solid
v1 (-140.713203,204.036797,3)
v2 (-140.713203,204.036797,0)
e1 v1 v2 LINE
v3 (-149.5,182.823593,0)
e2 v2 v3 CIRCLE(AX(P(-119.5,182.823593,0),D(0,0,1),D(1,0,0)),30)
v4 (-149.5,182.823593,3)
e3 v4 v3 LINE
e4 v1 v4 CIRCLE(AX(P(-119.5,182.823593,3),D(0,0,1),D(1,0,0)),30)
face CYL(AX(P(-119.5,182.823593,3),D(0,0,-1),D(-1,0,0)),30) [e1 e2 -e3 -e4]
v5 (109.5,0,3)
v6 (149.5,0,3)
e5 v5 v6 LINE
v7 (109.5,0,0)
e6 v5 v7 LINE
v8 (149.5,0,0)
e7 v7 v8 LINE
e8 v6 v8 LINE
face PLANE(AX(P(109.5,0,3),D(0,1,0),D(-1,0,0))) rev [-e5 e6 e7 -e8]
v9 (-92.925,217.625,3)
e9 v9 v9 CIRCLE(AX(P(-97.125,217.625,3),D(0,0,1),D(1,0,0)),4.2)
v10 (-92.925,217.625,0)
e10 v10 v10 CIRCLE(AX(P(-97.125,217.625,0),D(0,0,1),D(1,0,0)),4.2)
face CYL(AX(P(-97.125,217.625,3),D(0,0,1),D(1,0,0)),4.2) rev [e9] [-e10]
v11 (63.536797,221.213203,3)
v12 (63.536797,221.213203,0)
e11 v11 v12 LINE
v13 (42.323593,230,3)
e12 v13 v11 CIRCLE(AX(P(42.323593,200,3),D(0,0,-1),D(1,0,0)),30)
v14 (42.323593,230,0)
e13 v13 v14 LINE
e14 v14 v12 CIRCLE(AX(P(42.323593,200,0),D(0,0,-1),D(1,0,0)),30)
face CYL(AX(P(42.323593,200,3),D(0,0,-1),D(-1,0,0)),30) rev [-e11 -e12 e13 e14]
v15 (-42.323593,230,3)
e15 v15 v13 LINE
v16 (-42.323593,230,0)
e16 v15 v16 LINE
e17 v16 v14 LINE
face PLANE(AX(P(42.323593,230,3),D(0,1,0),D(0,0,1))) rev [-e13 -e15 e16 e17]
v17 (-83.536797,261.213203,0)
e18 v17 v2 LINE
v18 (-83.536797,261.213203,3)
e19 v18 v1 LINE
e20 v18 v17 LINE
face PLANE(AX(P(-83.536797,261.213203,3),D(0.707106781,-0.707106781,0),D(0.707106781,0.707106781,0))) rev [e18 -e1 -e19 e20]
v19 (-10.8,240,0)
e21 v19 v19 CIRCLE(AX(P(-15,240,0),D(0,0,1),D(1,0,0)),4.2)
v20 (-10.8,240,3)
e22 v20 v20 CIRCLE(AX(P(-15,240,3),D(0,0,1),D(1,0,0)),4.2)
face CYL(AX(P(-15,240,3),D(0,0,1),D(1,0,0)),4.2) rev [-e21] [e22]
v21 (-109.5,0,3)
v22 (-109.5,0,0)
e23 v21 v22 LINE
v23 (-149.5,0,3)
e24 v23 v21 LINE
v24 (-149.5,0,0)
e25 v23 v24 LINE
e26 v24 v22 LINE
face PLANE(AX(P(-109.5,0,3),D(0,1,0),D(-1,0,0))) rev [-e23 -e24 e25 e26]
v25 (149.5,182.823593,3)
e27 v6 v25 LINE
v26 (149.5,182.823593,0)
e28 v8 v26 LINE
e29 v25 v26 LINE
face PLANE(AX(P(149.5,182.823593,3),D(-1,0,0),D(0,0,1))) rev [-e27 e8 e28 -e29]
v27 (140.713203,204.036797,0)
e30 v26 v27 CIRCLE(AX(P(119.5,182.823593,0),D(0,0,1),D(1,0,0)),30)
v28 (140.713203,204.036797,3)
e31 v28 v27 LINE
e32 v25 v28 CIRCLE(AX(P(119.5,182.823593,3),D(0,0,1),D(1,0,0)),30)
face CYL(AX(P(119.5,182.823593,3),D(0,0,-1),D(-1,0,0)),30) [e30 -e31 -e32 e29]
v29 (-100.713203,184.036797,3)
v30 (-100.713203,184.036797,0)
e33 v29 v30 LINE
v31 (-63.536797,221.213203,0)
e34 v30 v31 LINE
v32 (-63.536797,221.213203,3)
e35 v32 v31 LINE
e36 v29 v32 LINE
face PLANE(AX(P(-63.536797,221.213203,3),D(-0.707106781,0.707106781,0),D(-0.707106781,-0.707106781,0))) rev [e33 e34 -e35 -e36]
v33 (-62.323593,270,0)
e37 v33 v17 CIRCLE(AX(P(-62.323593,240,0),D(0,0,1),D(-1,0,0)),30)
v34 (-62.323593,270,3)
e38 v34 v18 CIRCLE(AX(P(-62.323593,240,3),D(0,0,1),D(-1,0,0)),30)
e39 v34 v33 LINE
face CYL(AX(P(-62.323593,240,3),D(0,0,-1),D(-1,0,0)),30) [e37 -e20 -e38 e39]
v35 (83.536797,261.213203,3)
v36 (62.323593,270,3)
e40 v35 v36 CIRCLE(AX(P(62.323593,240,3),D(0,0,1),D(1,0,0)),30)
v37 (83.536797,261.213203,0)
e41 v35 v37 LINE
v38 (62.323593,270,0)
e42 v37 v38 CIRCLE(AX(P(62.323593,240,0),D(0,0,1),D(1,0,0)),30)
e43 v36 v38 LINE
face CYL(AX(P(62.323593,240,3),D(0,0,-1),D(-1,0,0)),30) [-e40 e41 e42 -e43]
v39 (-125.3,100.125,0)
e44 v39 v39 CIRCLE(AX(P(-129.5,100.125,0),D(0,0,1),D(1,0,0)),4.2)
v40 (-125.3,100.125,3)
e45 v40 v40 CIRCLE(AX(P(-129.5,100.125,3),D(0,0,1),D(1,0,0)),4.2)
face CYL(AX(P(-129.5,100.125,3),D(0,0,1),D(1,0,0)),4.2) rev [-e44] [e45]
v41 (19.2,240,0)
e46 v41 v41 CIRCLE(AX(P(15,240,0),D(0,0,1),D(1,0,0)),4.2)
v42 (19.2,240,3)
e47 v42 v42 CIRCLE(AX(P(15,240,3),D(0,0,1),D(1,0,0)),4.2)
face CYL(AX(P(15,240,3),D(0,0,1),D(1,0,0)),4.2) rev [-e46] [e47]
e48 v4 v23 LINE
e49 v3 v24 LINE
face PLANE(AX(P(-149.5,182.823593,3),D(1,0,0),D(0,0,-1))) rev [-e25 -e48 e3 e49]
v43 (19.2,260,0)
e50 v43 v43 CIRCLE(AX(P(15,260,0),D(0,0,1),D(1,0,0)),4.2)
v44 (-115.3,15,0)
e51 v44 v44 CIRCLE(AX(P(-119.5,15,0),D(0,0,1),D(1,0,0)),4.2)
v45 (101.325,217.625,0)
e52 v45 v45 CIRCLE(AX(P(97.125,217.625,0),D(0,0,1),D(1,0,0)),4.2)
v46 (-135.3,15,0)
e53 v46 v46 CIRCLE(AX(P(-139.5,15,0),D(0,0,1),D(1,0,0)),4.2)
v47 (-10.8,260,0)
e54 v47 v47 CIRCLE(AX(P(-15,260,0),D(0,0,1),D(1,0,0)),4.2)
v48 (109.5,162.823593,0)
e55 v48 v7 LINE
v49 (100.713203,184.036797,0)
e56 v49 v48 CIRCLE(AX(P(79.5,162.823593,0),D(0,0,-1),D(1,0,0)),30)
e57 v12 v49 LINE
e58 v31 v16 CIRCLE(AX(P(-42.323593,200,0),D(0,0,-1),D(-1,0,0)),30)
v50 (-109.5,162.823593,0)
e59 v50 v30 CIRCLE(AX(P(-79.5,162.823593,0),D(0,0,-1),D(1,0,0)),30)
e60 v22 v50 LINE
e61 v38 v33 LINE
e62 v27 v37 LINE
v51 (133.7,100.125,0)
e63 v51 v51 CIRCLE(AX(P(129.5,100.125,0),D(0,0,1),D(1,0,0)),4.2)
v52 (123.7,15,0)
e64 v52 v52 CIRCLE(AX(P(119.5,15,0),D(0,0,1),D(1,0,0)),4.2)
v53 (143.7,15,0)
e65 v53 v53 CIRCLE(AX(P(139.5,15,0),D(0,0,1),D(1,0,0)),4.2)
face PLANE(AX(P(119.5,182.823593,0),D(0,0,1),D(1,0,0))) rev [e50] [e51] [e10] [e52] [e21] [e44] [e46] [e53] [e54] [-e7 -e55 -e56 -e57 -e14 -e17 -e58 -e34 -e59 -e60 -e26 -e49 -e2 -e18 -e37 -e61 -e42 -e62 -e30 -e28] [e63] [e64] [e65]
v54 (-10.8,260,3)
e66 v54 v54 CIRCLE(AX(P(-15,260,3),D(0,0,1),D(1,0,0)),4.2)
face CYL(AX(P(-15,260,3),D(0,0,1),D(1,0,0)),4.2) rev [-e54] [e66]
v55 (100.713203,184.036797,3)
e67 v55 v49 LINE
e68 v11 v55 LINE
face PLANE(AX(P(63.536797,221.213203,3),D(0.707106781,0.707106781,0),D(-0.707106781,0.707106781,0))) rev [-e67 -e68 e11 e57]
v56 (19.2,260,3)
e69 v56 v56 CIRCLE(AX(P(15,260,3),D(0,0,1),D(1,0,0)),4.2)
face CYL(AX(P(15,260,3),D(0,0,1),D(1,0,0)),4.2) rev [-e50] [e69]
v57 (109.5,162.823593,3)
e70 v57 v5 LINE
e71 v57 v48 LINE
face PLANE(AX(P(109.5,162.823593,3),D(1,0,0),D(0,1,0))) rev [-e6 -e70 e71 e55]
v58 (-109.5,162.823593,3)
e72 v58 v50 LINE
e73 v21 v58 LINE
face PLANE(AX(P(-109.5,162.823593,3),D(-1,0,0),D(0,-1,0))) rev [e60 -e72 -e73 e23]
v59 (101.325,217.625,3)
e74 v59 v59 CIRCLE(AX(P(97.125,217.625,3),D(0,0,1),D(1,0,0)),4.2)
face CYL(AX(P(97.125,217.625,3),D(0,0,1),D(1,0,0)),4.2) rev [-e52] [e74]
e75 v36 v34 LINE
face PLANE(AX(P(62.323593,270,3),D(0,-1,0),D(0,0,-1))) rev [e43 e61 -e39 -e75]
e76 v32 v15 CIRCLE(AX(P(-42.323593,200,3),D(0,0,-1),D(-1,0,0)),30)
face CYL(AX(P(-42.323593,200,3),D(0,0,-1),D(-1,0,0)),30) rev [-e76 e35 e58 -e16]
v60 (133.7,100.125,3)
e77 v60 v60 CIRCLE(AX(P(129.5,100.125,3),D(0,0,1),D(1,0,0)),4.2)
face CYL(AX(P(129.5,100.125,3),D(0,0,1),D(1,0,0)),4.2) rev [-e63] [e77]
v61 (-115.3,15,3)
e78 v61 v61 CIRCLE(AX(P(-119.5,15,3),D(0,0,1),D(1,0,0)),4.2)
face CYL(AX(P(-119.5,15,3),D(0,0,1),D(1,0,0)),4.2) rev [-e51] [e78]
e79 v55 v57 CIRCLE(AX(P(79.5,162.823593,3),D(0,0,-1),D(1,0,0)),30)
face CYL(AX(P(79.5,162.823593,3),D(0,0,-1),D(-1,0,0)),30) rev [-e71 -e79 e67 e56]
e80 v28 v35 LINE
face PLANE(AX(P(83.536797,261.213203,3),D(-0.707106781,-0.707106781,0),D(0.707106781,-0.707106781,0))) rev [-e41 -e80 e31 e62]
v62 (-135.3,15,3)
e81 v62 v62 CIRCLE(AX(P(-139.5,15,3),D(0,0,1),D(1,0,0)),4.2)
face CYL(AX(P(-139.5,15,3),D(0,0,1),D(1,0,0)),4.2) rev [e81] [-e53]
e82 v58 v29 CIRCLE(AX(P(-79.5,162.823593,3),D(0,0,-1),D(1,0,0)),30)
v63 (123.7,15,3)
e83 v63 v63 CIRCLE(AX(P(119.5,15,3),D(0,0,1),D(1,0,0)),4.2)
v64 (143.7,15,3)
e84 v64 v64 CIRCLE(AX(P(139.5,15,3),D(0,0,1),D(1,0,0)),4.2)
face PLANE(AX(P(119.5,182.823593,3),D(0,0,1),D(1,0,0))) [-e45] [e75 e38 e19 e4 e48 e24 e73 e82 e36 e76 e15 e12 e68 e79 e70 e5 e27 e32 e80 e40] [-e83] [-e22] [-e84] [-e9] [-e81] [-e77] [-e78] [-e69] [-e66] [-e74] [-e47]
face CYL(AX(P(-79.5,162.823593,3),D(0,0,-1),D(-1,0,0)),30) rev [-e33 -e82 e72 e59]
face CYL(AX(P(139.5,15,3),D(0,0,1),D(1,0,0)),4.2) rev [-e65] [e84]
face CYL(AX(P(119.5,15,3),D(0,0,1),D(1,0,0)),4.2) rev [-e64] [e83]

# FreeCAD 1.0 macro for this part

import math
import FreeCAD as App
import Part
import Sketcher

V = App.Vector

doc = App.newDocument("Part")
body = doc.addObject("PartDesign::Body", "Body")

sketch1 = body.newObject("Sketcher::SketchObject", "Sketch")
sketch1.AttachmentSupport = (doc.getObject("XY_Plane"), [""])
sketch1.MapMode = "FlatFace"
sketch1.addGeometry(Part.LineSegment(V(-101, 184, 0), V(-64, 221, 0)), False)
sketch1.addGeometry(Part.ArcOfCircle(Part.Circle(V(-42, 200, 0), V(0, 0, 1), 30), math.radians(90), math.radians(135)), False)
sketch1.addGeometry(Part.LineSegment(V(-42, 230, 0), V(42, 230, 0)), False)
sketch1.addGeometry(Part.ArcOfCircle(Part.Circle(V(42, 200, 0), V(0, 0, 1), 30), math.radians(45), math.radians(90)), False)
sketch1.addGeometry(Part.LineSegment(V(64, 221, 0), V(101, 184, 0)), False)
sketch1.addGeometry(Part.ArcOfCircle(Part.Circle(V(79, 163, 0), V(0, 0, 1), 30), math.radians(0), math.radians(45)), False)
sketch1.addGeometry(Part.LineSegment(V(110, 163, 0), V(110, 0, 0)), False)
sketch1.addGeometry(Part.LineSegment(V(110, 0, 0), V(150, 0, 0)), False)
sketch1.addGeometry(Part.LineSegment(V(150, 0, 0), V(150, 183, 0)), False)
sketch1.addGeometry(Part.ArcOfCircle(Part.Circle(V(119, 183, 0), V(0, 0, 1), 30), math.radians(0), math.radians(45)), False)
sketch1.addGeometry(Part.LineSegment(V(141, 204, 0), V(84, 261, 0)), False)
sketch1.addGeometry(Part.ArcOfCircle(Part.Circle(V(62, 240, 0), V(0, 0, 1), 30), math.radians(45), math.radians(90)), False)
sketch1.addGeometry(Part.LineSegment(V(62, 270, 0), V(-62, 270, 0)), False)
sketch1.addGeometry(Part.ArcOfCircle(Part.Circle(V(-62, 240, 0), V(0, 0, 1), 30), math.radians(90), math.radians(135)), False)
sketch1.addGeometry(Part.LineSegment(V(-84, 261, 0), V(-141, 204, 0)), False)
sketch1.addGeometry(Part.ArcOfCircle(Part.Circle(V(-119, 183, 0), V(0, 0, 1), 30), math.radians(135), math.radians(180)), False)
sketch1.addGeometry(Part.LineSegment(V(-150, 183, 0), V(-150, 0, 0)), False)
sketch1.addGeometry(Part.LineSegment(V(-150, 0, 0), V(-110, 0, 0)), False)
sketch1.addGeometry(Part.LineSegment(V(-110, 0, 0), V(-110, 163, 0)), False)
sketch1.addGeometry(Part.ArcOfCircle(Part.Circle(V(-79, 163, 0), V(0, 0, 1), 30), math.radians(135), math.radians(180)), False)
sketch1.addConstraint(Sketcher.Constraint("Tangent", 0, 2, 1, 2))
sketch1.addConstraint(Sketcher.Constraint("Tangent", 1, 1, 2, 1))
sketch1.addConstraint(Sketcher.Constraint("Tangent", 2, 2, 3, 2))
sketch1.addConstraint(Sketcher.Constraint("Tangent", 3, 1, 4, 1))
sketch1.addConstraint(Sketcher.Constraint("Tangent", 4, 2, 5, 2))
sketch1.addConstraint(Sketcher.Constraint("Tangent", 5, 1, 6, 1))
sketch1.addConstraint(Sketcher.Constraint("Coincident", 6, 2, 7, 1))
sketch1.addConstraint(Sketcher.Constraint("Coincident", 7, 2, 8, 1))
sketch1.addConstraint(Sketcher.Constraint("Tangent", 8, 2, 9, 1))
sketch1.addConstraint(Sketcher.Constraint("Tangent", 9, 2, 10, 1))
sketch1.addConstraint(Sketcher.Constraint("Tangent", 10, 2, 11, 1))
sketch1.addConstraint(Sketcher.Constraint("Tangent", 11, 2, 12, 1))
sketch1.addConstraint(Sketcher.Constraint("Tangent", 12, 2, 13, 1))
sketch1.addConstraint(Sketcher.Constraint("Tangent", 13, 2, 14, 1))
sketch1.addConstraint(Sketcher.Constraint("Tangent", 14, 2, 15, 1))
sketch1.addConstraint(Sketcher.Constraint("Tangent", 15, 2, 16, 1))
sketch1.addConstraint(Sketcher.Constraint("Coincident", 16, 2, 17, 1))
sketch1.addConstraint(Sketcher.Constraint("Coincident", 17, 2, 18, 1))
sketch1.addConstraint(Sketcher.Constraint("Tangent", 18, 2, 19, 2))
sketch1.addConstraint(Sketcher.Constraint("Tangent", 19, 1, 0, 1))
sketch1.addConstraint(Sketcher.Constraint("Horizontal", 2))
sketch1.addConstraint(Sketcher.Constraint("Vertical", 6))
sketch1.addConstraint(Sketcher.Constraint("Horizontal", 7))
sketch1.addConstraint(Sketcher.Constraint("Vertical", 8))
sketch1.addConstraint(Sketcher.Constraint("Horizontal", 12))
sketch1.addConstraint(Sketcher.Constraint("Vertical", 16))
sketch1.addConstraint(Sketcher.Constraint("Horizontal", 17))
sketch1.addConstraint(Sketcher.Constraint("Vertical", 18))
sketch1.addConstraint(Sketcher.Constraint("Equal", 1, 3))
sketch1.addConstraint(Sketcher.Constraint("Equal", 3, 5))
sketch1.addConstraint(Sketcher.Constraint("Equal", 5, 9))
sketch1.addConstraint(Sketcher.Constraint("Equal", 9, 11))
sketch1.addConstraint(Sketcher.Constraint("Equal", 11, 13))
sketch1.addConstraint(Sketcher.Constraint("Equal", 13, 15))
sketch1.addConstraint(Sketcher.Constraint("Equal", 15, 19))
sketch1.addConstraint(Sketcher.Constraint("Symmetric", 7, 2, 16, 2, -1, 1))
sketch1.addConstraint(Sketcher.Constraint("Symmetric", 5, 3, 19, 3, -2))
sketch1.addConstraint(Sketcher.Constraint("Symmetric", 10, 2, 13, 2, -2))
sketch1.addConstraint(Sketcher.Constraint("PointOnObject", 6, 2, -1))
sketch1.addConstraint(Sketcher.Constraint("Perpendicular", 0, 4))
sketch1.addConstraint(Sketcher.Constraint("Parallel", 4, 10))
sketch1.addConstraint(Sketcher.Constraint("Perpendicular", 10, 14))
sketch1.addConstraint(Sketcher.Constraint("Radius", 1, 30.0))
sketch1.addConstraint(Sketcher.Constraint("DistanceX", 7, 1, 7, 2, 40.0))
sketch1.addConstraint(Sketcher.Constraint("DistanceY", -1, 1, 1, 3, 200.0))
sketch1.addConstraint(Sketcher.Constraint("DistanceY", -1, 1, 11, 3, 240.0))
sketch1.addConstraint(Sketcher.Constraint("DistanceY", 5, 3, 9, 3, 20.0))
sketch1.addConstraint(Sketcher.Constraint("DistanceX", 15, 3, 5, 3, 199.0))
sketch1.addConstraint(Sketcher.Constraint("Distance", 0, 52.575379))
pad1 = body.newObject("PartDesign::Pad", "Pad")
pad1.Profile = sketch1
pad1.Length = 3

sketch2 = body.newObject("Sketcher::SketchObject", "Sketch001")
sketch2.AttachmentSupport = (doc.getObject("XY_Plane"), [""])
sketch2.MapMode = "FlatFace"
sketch2.AttachmentOffset = App.Placement(V(0, 0, 3), App.Rotation())
sketch2.addGeometry(Part.Circle(V(-119.5, 15, 0), V(0, 0, 1), 4.2), False)
sketch2.addGeometry(Part.Circle(V(-139.5, 15, 0), V(0, 0, 1), 4.2), False)
sketch2.addGeometry(Part.Circle(V(0, 15, 0), V(0, 0, 1), 4.2), False)
sketch2.addGeometry(Part.Circle(V(139.5, 15, 0), V(0, 0, 1), 4.2), False)
sketch2.addGeometry(Part.Circle(V(-15, 260, 0), V(0, 0, 1), 4.2), False)
sketch2.addGeometry(Part.Circle(V(-15, 240, 0), V(0, 0, 1), 4.2), False)
sketch2.addGeometry(Part.Circle(V(15, 240, 0), V(0, 0, 1), 4.2), False)
sketch2.addGeometry(Part.Circle(V(15, 260, 0), V(0, 0, 1), 4.2), False)
sketch2.addGeometry(Part.Circle(V(-129.5, 100.1, 0), V(0, 0, 1), 4.2), False)
sketch2.addGeometry(Part.Circle(V(-97.1, 217.6, 0), V(0, 0, 1), 4.2), False)
sketch2.addGeometry(Part.Circle(V(129.5, 100.1, 0), V(0, 0, 1), 4.2), False)
sketch2.addGeometry(Part.Circle(V(97.1, 217.6, 0), V(0, 0, 1), 4.2), False)
sketch2.addGeometry(Part.Circle(V(119.5, 15, 0), V(0, 0, 1), 4.2), False)
sketch2.addConstraint(Sketcher.Constraint("Equal", 0, 1))
sketch2.addConstraint(Sketcher.Constraint("Equal", 1, 2))
sketch2.addConstraint(Sketcher.Constraint("Equal", 2, 3))
sketch2.addConstraint(Sketcher.Constraint("Equal", 3, 4))
sketch2.addConstraint(Sketcher.Constraint("Equal", 4, 5))
sketch2.addConstraint(Sketcher.Constraint("Equal", 5, 6))
sketch2.addConstraint(Sketcher.Constraint("Equal", 6, 7))
sketch2.addConstraint(Sketcher.Constraint("Equal", 7, 8))
sketch2.addConstraint(Sketcher.Constraint("Equal", 8, 9))
sketch2.addConstraint(Sketcher.Constraint("Equal", 9, 10))
sketch2.addConstraint(Sketcher.Constraint("Equal", 10, 11))
sketch2.addConstraint(Sketcher.Constraint("Equal", 11, 12))
sketch2.addConstraint(Sketcher.Constraint("Symmetric", 1, 3, 3, 3, -2))
sketch2.addConstraint(Sketcher.Constraint("Symmetric", 5, 3, 6, 3, -2))
sketch2.addConstraint(Sketcher.Constraint("Symmetric", 4, 3, 7, 3, -2))
sketch2.addConstraint(Sketcher.Constraint("Symmetric", 8, 3, 10, 3, -2))
sketch2.addConstraint(Sketcher.Constraint("Symmetric", 9, 3, 11, 3, -2))
sketch2.addConstraint(Sketcher.Constraint("Symmetric", 0, 3, 12, 3, -2))
sketch2.addConstraint(Sketcher.Constraint("PointOnObject", 2, 3, -2))
sketch2.addConstraint(Sketcher.Constraint("Horizontal", 0, 3, 1, 3))
sketch2.addConstraint(Sketcher.Constraint("Horizontal", 1, 3, 2, 3))
sketch2.addConstraint(Sketcher.Constraint("Vertical", 4, 3, 5, 3))
sketch2.addConstraint(Sketcher.Constraint("Diameter", 0, 8.4))
sketch2.addConstraint(Sketcher.Constraint("DistanceY", -1, 1, 0, 3, 15.0))
sketch2.addConstraint(Sketcher.Constraint("DistanceX", 4, 3, -1, 1, 15.0))
sketch2.addConstraint(Sketcher.Constraint("DistanceY", -1, 1, 4, 3, 260.0))
sketch2.addConstraint(Sketcher.Constraint("DistanceY", -1, 1, 5, 3, 240.0))
sketch2.addConstraint(Sketcher.Constraint("DistanceX", 1, 3, 0, 3, 20.0))
sketch2.addConstraint(Sketcher.Constraint("DistanceX", 0, 3, 3, 3, 259.0))
sketch2.addConstraint(Sketcher.Constraint("DistanceX", 8, 3, 0, 3, 10.0))
sketch2.addConstraint(Sketcher.Constraint("DistanceY", 8, 3, 9, 3, 117.5))
sketch2.addConstraint(Sketcher.Constraint("DistanceY", -1, 1, 8, 3, 100.125))
sketch2.addConstraint(Sketcher.Constraint("DistanceX", 9, 3, -1, 1, 97.125))
doc.recompute()
hole = body.newObject("PartDesign::Hole", "Hole")
hole.Profile = sketch2
hole.ThreadType = "None"
hole.Diameter = 8.4
hole.DepthType = "ThroughAll"

doc.recompute()
